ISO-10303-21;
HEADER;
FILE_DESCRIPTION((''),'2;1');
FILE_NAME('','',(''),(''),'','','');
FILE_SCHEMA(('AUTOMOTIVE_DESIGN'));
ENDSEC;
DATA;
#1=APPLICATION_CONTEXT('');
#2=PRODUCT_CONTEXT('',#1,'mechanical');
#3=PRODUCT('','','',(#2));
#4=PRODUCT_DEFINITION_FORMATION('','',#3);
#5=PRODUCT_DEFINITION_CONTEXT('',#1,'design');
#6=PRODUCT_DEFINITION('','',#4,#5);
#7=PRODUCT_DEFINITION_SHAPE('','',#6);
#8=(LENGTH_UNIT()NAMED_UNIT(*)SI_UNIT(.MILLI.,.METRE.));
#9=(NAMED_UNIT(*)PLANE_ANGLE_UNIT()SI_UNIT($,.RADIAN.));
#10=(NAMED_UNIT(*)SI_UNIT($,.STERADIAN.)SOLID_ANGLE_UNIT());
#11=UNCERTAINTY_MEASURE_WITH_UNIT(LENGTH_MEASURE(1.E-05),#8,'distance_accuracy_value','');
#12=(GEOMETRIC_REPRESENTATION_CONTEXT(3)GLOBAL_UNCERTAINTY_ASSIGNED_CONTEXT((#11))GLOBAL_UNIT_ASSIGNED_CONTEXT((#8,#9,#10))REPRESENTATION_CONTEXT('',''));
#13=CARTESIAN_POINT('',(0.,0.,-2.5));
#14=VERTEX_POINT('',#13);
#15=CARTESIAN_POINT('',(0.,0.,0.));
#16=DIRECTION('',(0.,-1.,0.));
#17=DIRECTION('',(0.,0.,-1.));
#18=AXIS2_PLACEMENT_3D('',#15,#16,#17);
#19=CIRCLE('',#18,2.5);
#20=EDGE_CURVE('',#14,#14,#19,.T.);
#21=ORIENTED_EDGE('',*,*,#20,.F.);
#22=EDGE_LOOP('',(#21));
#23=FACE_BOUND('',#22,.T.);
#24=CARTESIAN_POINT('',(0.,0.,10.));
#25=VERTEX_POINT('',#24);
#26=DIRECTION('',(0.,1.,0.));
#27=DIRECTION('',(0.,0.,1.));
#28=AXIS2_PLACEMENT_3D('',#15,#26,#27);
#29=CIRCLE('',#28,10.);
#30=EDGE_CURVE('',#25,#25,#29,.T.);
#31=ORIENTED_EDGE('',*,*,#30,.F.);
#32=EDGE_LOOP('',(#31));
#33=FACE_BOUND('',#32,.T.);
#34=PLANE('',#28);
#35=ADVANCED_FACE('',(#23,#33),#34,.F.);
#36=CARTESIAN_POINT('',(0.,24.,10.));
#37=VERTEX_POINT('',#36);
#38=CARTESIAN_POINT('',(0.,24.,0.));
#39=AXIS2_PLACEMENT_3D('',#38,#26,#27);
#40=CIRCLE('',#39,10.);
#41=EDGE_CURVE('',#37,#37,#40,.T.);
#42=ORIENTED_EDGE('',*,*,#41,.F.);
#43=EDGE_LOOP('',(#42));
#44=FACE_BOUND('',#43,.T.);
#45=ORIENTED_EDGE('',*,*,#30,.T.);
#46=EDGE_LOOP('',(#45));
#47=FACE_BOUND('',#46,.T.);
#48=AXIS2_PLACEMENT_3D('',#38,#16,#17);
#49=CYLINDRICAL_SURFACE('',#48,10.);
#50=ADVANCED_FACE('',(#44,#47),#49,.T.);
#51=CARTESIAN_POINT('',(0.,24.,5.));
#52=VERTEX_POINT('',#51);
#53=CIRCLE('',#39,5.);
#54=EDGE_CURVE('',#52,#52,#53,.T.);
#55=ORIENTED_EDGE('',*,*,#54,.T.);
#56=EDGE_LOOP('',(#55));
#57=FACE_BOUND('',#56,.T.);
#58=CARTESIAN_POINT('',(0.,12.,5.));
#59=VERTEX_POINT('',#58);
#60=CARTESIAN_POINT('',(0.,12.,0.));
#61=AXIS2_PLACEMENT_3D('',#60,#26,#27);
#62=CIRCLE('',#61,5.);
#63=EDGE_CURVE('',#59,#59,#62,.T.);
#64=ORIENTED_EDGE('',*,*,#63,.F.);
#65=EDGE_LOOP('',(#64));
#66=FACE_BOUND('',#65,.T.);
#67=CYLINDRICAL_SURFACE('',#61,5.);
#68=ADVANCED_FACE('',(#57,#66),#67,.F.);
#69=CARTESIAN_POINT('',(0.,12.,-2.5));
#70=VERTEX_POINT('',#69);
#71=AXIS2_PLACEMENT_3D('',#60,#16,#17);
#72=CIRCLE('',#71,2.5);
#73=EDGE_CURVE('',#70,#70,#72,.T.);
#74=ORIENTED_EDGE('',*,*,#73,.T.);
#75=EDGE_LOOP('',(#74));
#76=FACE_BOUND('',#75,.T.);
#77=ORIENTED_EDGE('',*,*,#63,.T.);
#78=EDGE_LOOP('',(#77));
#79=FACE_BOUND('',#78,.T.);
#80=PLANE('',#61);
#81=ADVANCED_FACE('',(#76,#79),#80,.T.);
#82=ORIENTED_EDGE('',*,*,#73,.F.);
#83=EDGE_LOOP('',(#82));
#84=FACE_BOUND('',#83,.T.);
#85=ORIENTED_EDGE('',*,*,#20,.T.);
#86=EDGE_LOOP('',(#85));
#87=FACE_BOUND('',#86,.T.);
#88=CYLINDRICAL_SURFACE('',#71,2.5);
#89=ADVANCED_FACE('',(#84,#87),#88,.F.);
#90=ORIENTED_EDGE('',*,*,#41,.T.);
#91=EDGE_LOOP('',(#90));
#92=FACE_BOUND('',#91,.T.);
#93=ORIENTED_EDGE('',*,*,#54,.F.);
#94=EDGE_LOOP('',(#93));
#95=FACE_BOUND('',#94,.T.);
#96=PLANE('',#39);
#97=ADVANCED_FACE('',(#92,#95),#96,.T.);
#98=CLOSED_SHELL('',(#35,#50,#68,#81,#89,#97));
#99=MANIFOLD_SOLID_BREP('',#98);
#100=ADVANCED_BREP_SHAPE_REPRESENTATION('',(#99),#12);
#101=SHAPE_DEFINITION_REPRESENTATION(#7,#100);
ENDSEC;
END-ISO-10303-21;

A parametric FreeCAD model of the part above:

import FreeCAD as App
import Part
import Sketcher
from FreeCAD import Vector
Q = App.Units.Quantity

doc = App.newDocument("Part")
body = doc.addObject("PartDesign::Body", "Body")

sketch1 = doc.addObject("Sketcher::SketchObject", "Sketch")
body.addObject(sketch1)
sketch1.AttachmentSupport = (doc.XZ_Plane, [""])
sketch1.MapMode = "FlatFace"
sketch1.addGeometry(Part.Circle(Vector(0, 0, 0), Vector(0, 0, 1), 10), False)
sketch1.addConstraint([
    Sketcher.Constraint("Coincident", 0, 3, -1, 1),
    Sketcher.Constraint("Diameter", 0, Q("20 mm")),
])
pad1 = doc.addObject("PartDesign::Pad", "Pad")
body.addObject(pad1)
pad1.Profile = sketch1
pad1.Length = 24
pad1.Reversed = True

sketch2 = doc.addObject("Sketcher::SketchObject", "Sketch001")
body.addObject(sketch2)
sketch2.AttachmentSupport = (doc.XZ_Plane, [""])
sketch2.MapMode = "FlatFace"
sketch2.AttachmentOffset = App.Placement(Vector(0, 0, -24), App.Rotation())
sketch2.addGeometry(Part.Circle(Vector(0, 0, 0), Vector(0, 0, 1), 5), False)
sketch2.addConstraint([
    Sketcher.Constraint("Coincident", 0, 3, -1, 1),
    Sketcher.Constraint("Diameter", 0, Q("10 mm")),
])
pocket1 = doc.addObject("PartDesign::Pocket", "Pocket")
body.addObject(pocket1)
pocket1.Profile = sketch2
pocket1.Length = 12
pocket1.Reversed = True

sketch3 = doc.addObject("Sketcher::SketchObject", "Sketch002")
body.addObject(sketch3)
sketch3.AttachmentSupport = (doc.XZ_Plane, [""])
sketch3.MapMode = "FlatFace"
sketch3.addGeometry(Part.Circle(Vector(0, 0, 0), Vector(0, 0, 1), 2.5), False)
sketch3.addConstraint([
    Sketcher.Constraint("Coincident", 0, 3, -1, 1),
    Sketcher.Constraint("Diameter", 0, Q("5 mm")),
])
pocket2 = doc.addObject("PartDesign::Pocket", "Pocket001")
body.addObject(pocket2)
pocket2.Profile = sketch3
pocket2.Length = 12

doc.recompute()
